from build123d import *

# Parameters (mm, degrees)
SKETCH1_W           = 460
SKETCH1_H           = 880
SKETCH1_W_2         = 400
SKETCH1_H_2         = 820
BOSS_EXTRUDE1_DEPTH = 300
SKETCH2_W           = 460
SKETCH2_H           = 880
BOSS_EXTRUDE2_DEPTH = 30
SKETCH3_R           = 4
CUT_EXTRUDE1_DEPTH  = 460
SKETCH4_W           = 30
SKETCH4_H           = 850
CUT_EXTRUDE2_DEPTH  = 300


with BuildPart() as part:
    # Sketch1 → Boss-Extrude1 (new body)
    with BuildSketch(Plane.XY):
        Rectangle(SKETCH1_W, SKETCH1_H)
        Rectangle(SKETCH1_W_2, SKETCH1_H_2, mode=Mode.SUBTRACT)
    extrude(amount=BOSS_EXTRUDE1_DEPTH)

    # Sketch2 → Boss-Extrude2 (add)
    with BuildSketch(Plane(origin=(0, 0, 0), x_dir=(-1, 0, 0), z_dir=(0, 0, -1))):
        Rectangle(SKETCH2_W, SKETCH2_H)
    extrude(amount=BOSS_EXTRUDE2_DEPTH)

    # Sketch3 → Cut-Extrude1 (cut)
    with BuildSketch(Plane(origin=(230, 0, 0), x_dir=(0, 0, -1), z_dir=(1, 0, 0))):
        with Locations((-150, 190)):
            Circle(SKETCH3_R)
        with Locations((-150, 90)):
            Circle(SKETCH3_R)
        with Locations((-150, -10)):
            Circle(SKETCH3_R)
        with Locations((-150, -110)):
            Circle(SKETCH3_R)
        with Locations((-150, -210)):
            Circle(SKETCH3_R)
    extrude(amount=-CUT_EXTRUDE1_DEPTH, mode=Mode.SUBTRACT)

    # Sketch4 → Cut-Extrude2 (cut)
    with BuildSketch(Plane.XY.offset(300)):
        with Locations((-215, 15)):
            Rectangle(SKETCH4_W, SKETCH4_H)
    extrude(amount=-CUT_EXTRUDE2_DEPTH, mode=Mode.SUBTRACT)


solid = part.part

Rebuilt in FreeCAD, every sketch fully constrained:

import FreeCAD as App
import Part
import Sketcher

doc = App.newDocument("Part")
body = doc.addObject("PartDesign::Body", "Body")

# Sketch on XY plane
sketch1 = body.newObject("Sketcher::SketchObject", "Sketch")
sketch1.AttachmentSupport = (doc.getObject("XY_Plane"), [""])
sketch1.MapMode = "FlatFace"
sketch1.addGeometry(Part.LineSegment(App.Vector(-230, 440, 0), App.Vector(-230, -440, 0)), False)
sketch1.addGeometry(Part.LineSegment(App.Vector(-230, -440, 0), App.Vector(230, -440, 0)), False)
sketch1.addGeometry(Part.LineSegment(App.Vector(230, -440, 0), App.Vector(230, 440, 0)), False)
sketch1.addGeometry(Part.LineSegment(App.Vector(230, 440, 0), App.Vector(-230, 440, 0)), False)
sketch1.addGeometry(Part.LineSegment(App.Vector(200, -410, 0), App.Vector(-200, -410, 0)), False)
sketch1.addGeometry(Part.LineSegment(App.Vector(-200, -410, 0), App.Vector(-200, 410, 0)), False)
sketch1.addGeometry(Part.LineSegment(App.Vector(-200, 410, 0), App.Vector(200, 410, 0)), False)
sketch1.addGeometry(Part.LineSegment(App.Vector(200, 410, 0), App.Vector(200, -410, 0)), False)
sketch1.addConstraint(Sketcher.Constraint("Coincident", 0, 2, 1, 1))
sketch1.addConstraint(Sketcher.Constraint("Coincident", 1, 2, 2, 1))
sketch1.addConstraint(Sketcher.Constraint("Coincident", 2, 2, 3, 1))
sketch1.addConstraint(Sketcher.Constraint("Coincident", 3, 2, 0, 1))
sketch1.addConstraint(Sketcher.Constraint("Coincident", 4, 2, 5, 1))
sketch1.addConstraint(Sketcher.Constraint("Coincident", 5, 2, 6, 1))
sketch1.addConstraint(Sketcher.Constraint("Coincident", 6, 2, 7, 1))
sketch1.addConstraint(Sketcher.Constraint("Coincident", 7, 2, 4, 1))
sketch1.addConstraint(Sketcher.Constraint("Vertical", 0))
sketch1.addConstraint(Sketcher.Constraint("Horizontal", 1))
sketch1.addConstraint(Sketcher.Constraint("Vertical", 2))
sketch1.addConstraint(Sketcher.Constraint("Horizontal", 3))
sketch1.addConstraint(Sketcher.Constraint("Horizontal", 4))
sketch1.addConstraint(Sketcher.Constraint("Vertical", 5))
sketch1.addConstraint(Sketcher.Constraint("Horizontal", 6))
sketch1.addConstraint(Sketcher.Constraint("Vertical", 7))
sketch1.addConstraint(Sketcher.Constraint("Symmetric", 0, 2, 2, 2, -1, 1))
sketch1.addConstraint(Sketcher.Constraint("Symmetric", 4, 2, 6, 2, -1, 1))
sketch1.addConstraint(Sketcher.Constraint("DistanceX", 1, 1, 1, 2, 460.0))
sketch1.addConstraint(Sketcher.Constraint("DistanceX", 4, 2, 4, 1, 400.0))
sketch1.addConstraint(Sketcher.Constraint("DistanceY", 0, 2, 0, 1, 880.0))
sketch1.addConstraint(Sketcher.Constraint("DistanceY", 5, 1, 5, 2, 820.0))
pad1 = body.newObject("PartDesign::Pad", "Pad")
pad1.Profile = sketch1
pad1.Length = 300

# Sketch on XY plane
sketch2 = body.newObject("Sketcher::SketchObject", "Sketch001")
sketch2.AttachmentSupport = (doc.getObject("XY_Plane"), [""])
sketch2.MapMode = "FlatFace"
sketch2.addGeometry(Part.LineSegment(App.Vector(230, 440, 0), App.Vector(230, -440, 0)), False)
sketch2.addGeometry(Part.LineSegment(App.Vector(230, -440, 0), App.Vector(-230, -440, 0)), False)
sketch2.addGeometry(Part.LineSegment(App.Vector(-230, -440, 0), App.Vector(-230, 440, 0)), False)
sketch2.addGeometry(Part.LineSegment(App.Vector(-230, 440, 0), App.Vector(230, 440, 0)), False)
sketch2.addConstraint(Sketcher.Constraint("Coincident", 0, 2, 1, 1))
sketch2.addConstraint(Sketcher.Constraint("Coincident", 1, 2, 2, 1))
sketch2.addConstraint(Sketcher.Constraint("Coincident", 2, 2, 3, 1))
sketch2.addConstraint(Sketcher.Constraint("Coincident", 3, 2, 0, 1))
sketch2.addConstraint(Sketcher.Constraint("Vertical", 0))
sketch2.addConstraint(Sketcher.Constraint("Horizontal", 1))
sketch2.addConstraint(Sketcher.Constraint("Vertical", 2))
sketch2.addConstraint(Sketcher.Constraint("Horizontal", 3))
sketch2.addConstraint(Sketcher.Constraint("Symmetric", 0, 2, 2, 2, -1, 1))
sketch2.addConstraint(Sketcher.Constraint("DistanceX", 1, 2, 1, 1, 460.0))
sketch2.addConstraint(Sketcher.Constraint("DistanceY", 0, 2, 0, 1, 880.0))
pad2 = body.newObject("PartDesign::Pad", "Pad001")
pad2.Profile = sketch2
pad2.Length = 30
pad2.Reversed = True

# Sketch on YZ plane
sketch3 = body.newObject("Sketcher::SketchObject", "Sketch002")
sketch3.AttachmentSupport = (doc.getObject("YZ_Plane"), [""])
sketch3.MapMode = "FlatFace"
sketch3.AttachmentOffset = App.Placement(App.Vector(0, 0, 230), App.Rotation())
sketch3.addGeometry(Part.Circle(App.Vector(190, 150, 0), App.Vector(0, 0, 1), 4), False)
sketch3.addGeometry(Part.Circle(App.Vector(90, 150, 0), App.Vector(0, 0, 1), 4), False)
sketch3.addGeometry(Part.Circle(App.Vector(-10, 150, 0), App.Vector(0, 0, 1), 4), False)
sketch3.addGeometry(Part.Circle(App.Vector(-110, 150, 0), App.Vector(0, 0, 1), 4), False)
sketch3.addGeometry(Part.Circle(App.Vector(-210, 150, 0), App.Vector(0, 0, 1), 4), False)
sketch3.addConstraint(Sketcher.Constraint("Equal", 0, 1))
sketch3.addConstraint(Sketcher.Constraint("Equal", 1, 2))
sketch3.addConstraint(Sketcher.Constraint("Equal", 2, 3))
sketch3.addConstraint(Sketcher.Constraint("Equal", 3, 4))
sketch3.addConstraint(Sketcher.Constraint("Horizontal", 0, 3, 1, 3))
sketch3.addConstraint(Sketcher.Constraint("Horizontal", 1, 3, 2, 3))
sketch3.addConstraint(Sketcher.Constraint("Horizontal", 2, 3, 3, 3))
sketch3.addConstraint(Sketcher.Constraint("Horizontal", 3, 3, 4, 3))
sketch3.addConstraint(Sketcher.Constraint("Diameter", 0, 8.0))
sketch3.addConstraint(Sketcher.Constraint("DistanceX", -1, 1, 0, 3, 190.0))
sketch3.addConstraint(Sketcher.Constraint("DistanceY", -1, 1, 0, 3, 150.0))
sketch3.addConstraint(Sketcher.Constraint("DistanceX", -1, 1, 1, 3, 90.0))
sketch3.addConstraint(Sketcher.Constraint("DistanceX", 2, 3, -1, 1, 10.0))
sketch3.addConstraint(Sketcher.Constraint("DistanceX", 3, 3, -1, 1, 110.0))
sketch3.addConstraint(Sketcher.Constraint("DistanceX", 4, 3, -1, 1, 210.0))
pocket1 = body.newObject("PartDesign::Pocket", "Pocket")
pocket1.Profile = sketch3
pocket1.Length = 460

# Sketch on XY plane
sketch4 = body.newObject("Sketcher::SketchObject", "Sketch003")
sketch4.AttachmentSupport = (doc.getObject("XY_Plane"), [""])
sketch4.MapMode = "FlatFace"
sketch4.AttachmentOffset = App.Placement(App.Vector(0, 0, 300), App.Rotation())
sketch4.addGeometry(Part.LineSegment(App.Vector(-230, 440, 0), App.Vector(-230, -410, 0)), False)
sketch4.addGeometry(Part.LineSegment(App.Vector(-230, -410, 0), App.Vector(-200, -410, 0)), False)
sketch4.addGeometry(Part.LineSegment(App.Vector(-200, -410, 0), App.Vector(-200, 440, 0)), False)
sketch4.addGeometry(Part.LineSegment(App.Vector(-200, 440, 0), App.Vector(-230, 440, 0)), False)
sketch4.addConstraint(Sketcher.Constraint("Coincident", 0, 2, 1, 1))
sketch4.addConstraint(Sketcher.Constraint("Coincident", 1, 2, 2, 1))
sketch4.addConstraint(Sketcher.Constraint("Coincident", 2, 2, 3, 1))
sketch4.addConstraint(Sketcher.Constraint("Coincident", 3, 2, 0, 1))
sketch4.addConstraint(Sketcher.Constraint("Vertical", 0))
sketch4.addConstraint(Sketcher.Constraint("Horizontal", 1))
sketch4.addConstraint(Sketcher.Constraint("Vertical", 2))
sketch4.addConstraint(Sketcher.Constraint("Horizontal", 3))
sketch4.addConstraint(Sketcher.Constraint("DistanceX", 1, 1, 1, 2, 30.0))
sketch4.addConstraint(Sketcher.Constraint("DistanceY", 0, 2, 0, 1, 850.0))
sketch4.addConstraint(Sketcher.Constraint("DistanceX", 0, 2, -1, 1, 230.0))
sketch4.addConstraint(Sketcher.Constraint("DistanceY", 0, 2, -1, 1, 410.0))
pocket2 = body.newObject("PartDesign::Pocket", "Pocket001")
pocket2.Profile = sketch4
pocket2.Length = 300

doc.recompute()
